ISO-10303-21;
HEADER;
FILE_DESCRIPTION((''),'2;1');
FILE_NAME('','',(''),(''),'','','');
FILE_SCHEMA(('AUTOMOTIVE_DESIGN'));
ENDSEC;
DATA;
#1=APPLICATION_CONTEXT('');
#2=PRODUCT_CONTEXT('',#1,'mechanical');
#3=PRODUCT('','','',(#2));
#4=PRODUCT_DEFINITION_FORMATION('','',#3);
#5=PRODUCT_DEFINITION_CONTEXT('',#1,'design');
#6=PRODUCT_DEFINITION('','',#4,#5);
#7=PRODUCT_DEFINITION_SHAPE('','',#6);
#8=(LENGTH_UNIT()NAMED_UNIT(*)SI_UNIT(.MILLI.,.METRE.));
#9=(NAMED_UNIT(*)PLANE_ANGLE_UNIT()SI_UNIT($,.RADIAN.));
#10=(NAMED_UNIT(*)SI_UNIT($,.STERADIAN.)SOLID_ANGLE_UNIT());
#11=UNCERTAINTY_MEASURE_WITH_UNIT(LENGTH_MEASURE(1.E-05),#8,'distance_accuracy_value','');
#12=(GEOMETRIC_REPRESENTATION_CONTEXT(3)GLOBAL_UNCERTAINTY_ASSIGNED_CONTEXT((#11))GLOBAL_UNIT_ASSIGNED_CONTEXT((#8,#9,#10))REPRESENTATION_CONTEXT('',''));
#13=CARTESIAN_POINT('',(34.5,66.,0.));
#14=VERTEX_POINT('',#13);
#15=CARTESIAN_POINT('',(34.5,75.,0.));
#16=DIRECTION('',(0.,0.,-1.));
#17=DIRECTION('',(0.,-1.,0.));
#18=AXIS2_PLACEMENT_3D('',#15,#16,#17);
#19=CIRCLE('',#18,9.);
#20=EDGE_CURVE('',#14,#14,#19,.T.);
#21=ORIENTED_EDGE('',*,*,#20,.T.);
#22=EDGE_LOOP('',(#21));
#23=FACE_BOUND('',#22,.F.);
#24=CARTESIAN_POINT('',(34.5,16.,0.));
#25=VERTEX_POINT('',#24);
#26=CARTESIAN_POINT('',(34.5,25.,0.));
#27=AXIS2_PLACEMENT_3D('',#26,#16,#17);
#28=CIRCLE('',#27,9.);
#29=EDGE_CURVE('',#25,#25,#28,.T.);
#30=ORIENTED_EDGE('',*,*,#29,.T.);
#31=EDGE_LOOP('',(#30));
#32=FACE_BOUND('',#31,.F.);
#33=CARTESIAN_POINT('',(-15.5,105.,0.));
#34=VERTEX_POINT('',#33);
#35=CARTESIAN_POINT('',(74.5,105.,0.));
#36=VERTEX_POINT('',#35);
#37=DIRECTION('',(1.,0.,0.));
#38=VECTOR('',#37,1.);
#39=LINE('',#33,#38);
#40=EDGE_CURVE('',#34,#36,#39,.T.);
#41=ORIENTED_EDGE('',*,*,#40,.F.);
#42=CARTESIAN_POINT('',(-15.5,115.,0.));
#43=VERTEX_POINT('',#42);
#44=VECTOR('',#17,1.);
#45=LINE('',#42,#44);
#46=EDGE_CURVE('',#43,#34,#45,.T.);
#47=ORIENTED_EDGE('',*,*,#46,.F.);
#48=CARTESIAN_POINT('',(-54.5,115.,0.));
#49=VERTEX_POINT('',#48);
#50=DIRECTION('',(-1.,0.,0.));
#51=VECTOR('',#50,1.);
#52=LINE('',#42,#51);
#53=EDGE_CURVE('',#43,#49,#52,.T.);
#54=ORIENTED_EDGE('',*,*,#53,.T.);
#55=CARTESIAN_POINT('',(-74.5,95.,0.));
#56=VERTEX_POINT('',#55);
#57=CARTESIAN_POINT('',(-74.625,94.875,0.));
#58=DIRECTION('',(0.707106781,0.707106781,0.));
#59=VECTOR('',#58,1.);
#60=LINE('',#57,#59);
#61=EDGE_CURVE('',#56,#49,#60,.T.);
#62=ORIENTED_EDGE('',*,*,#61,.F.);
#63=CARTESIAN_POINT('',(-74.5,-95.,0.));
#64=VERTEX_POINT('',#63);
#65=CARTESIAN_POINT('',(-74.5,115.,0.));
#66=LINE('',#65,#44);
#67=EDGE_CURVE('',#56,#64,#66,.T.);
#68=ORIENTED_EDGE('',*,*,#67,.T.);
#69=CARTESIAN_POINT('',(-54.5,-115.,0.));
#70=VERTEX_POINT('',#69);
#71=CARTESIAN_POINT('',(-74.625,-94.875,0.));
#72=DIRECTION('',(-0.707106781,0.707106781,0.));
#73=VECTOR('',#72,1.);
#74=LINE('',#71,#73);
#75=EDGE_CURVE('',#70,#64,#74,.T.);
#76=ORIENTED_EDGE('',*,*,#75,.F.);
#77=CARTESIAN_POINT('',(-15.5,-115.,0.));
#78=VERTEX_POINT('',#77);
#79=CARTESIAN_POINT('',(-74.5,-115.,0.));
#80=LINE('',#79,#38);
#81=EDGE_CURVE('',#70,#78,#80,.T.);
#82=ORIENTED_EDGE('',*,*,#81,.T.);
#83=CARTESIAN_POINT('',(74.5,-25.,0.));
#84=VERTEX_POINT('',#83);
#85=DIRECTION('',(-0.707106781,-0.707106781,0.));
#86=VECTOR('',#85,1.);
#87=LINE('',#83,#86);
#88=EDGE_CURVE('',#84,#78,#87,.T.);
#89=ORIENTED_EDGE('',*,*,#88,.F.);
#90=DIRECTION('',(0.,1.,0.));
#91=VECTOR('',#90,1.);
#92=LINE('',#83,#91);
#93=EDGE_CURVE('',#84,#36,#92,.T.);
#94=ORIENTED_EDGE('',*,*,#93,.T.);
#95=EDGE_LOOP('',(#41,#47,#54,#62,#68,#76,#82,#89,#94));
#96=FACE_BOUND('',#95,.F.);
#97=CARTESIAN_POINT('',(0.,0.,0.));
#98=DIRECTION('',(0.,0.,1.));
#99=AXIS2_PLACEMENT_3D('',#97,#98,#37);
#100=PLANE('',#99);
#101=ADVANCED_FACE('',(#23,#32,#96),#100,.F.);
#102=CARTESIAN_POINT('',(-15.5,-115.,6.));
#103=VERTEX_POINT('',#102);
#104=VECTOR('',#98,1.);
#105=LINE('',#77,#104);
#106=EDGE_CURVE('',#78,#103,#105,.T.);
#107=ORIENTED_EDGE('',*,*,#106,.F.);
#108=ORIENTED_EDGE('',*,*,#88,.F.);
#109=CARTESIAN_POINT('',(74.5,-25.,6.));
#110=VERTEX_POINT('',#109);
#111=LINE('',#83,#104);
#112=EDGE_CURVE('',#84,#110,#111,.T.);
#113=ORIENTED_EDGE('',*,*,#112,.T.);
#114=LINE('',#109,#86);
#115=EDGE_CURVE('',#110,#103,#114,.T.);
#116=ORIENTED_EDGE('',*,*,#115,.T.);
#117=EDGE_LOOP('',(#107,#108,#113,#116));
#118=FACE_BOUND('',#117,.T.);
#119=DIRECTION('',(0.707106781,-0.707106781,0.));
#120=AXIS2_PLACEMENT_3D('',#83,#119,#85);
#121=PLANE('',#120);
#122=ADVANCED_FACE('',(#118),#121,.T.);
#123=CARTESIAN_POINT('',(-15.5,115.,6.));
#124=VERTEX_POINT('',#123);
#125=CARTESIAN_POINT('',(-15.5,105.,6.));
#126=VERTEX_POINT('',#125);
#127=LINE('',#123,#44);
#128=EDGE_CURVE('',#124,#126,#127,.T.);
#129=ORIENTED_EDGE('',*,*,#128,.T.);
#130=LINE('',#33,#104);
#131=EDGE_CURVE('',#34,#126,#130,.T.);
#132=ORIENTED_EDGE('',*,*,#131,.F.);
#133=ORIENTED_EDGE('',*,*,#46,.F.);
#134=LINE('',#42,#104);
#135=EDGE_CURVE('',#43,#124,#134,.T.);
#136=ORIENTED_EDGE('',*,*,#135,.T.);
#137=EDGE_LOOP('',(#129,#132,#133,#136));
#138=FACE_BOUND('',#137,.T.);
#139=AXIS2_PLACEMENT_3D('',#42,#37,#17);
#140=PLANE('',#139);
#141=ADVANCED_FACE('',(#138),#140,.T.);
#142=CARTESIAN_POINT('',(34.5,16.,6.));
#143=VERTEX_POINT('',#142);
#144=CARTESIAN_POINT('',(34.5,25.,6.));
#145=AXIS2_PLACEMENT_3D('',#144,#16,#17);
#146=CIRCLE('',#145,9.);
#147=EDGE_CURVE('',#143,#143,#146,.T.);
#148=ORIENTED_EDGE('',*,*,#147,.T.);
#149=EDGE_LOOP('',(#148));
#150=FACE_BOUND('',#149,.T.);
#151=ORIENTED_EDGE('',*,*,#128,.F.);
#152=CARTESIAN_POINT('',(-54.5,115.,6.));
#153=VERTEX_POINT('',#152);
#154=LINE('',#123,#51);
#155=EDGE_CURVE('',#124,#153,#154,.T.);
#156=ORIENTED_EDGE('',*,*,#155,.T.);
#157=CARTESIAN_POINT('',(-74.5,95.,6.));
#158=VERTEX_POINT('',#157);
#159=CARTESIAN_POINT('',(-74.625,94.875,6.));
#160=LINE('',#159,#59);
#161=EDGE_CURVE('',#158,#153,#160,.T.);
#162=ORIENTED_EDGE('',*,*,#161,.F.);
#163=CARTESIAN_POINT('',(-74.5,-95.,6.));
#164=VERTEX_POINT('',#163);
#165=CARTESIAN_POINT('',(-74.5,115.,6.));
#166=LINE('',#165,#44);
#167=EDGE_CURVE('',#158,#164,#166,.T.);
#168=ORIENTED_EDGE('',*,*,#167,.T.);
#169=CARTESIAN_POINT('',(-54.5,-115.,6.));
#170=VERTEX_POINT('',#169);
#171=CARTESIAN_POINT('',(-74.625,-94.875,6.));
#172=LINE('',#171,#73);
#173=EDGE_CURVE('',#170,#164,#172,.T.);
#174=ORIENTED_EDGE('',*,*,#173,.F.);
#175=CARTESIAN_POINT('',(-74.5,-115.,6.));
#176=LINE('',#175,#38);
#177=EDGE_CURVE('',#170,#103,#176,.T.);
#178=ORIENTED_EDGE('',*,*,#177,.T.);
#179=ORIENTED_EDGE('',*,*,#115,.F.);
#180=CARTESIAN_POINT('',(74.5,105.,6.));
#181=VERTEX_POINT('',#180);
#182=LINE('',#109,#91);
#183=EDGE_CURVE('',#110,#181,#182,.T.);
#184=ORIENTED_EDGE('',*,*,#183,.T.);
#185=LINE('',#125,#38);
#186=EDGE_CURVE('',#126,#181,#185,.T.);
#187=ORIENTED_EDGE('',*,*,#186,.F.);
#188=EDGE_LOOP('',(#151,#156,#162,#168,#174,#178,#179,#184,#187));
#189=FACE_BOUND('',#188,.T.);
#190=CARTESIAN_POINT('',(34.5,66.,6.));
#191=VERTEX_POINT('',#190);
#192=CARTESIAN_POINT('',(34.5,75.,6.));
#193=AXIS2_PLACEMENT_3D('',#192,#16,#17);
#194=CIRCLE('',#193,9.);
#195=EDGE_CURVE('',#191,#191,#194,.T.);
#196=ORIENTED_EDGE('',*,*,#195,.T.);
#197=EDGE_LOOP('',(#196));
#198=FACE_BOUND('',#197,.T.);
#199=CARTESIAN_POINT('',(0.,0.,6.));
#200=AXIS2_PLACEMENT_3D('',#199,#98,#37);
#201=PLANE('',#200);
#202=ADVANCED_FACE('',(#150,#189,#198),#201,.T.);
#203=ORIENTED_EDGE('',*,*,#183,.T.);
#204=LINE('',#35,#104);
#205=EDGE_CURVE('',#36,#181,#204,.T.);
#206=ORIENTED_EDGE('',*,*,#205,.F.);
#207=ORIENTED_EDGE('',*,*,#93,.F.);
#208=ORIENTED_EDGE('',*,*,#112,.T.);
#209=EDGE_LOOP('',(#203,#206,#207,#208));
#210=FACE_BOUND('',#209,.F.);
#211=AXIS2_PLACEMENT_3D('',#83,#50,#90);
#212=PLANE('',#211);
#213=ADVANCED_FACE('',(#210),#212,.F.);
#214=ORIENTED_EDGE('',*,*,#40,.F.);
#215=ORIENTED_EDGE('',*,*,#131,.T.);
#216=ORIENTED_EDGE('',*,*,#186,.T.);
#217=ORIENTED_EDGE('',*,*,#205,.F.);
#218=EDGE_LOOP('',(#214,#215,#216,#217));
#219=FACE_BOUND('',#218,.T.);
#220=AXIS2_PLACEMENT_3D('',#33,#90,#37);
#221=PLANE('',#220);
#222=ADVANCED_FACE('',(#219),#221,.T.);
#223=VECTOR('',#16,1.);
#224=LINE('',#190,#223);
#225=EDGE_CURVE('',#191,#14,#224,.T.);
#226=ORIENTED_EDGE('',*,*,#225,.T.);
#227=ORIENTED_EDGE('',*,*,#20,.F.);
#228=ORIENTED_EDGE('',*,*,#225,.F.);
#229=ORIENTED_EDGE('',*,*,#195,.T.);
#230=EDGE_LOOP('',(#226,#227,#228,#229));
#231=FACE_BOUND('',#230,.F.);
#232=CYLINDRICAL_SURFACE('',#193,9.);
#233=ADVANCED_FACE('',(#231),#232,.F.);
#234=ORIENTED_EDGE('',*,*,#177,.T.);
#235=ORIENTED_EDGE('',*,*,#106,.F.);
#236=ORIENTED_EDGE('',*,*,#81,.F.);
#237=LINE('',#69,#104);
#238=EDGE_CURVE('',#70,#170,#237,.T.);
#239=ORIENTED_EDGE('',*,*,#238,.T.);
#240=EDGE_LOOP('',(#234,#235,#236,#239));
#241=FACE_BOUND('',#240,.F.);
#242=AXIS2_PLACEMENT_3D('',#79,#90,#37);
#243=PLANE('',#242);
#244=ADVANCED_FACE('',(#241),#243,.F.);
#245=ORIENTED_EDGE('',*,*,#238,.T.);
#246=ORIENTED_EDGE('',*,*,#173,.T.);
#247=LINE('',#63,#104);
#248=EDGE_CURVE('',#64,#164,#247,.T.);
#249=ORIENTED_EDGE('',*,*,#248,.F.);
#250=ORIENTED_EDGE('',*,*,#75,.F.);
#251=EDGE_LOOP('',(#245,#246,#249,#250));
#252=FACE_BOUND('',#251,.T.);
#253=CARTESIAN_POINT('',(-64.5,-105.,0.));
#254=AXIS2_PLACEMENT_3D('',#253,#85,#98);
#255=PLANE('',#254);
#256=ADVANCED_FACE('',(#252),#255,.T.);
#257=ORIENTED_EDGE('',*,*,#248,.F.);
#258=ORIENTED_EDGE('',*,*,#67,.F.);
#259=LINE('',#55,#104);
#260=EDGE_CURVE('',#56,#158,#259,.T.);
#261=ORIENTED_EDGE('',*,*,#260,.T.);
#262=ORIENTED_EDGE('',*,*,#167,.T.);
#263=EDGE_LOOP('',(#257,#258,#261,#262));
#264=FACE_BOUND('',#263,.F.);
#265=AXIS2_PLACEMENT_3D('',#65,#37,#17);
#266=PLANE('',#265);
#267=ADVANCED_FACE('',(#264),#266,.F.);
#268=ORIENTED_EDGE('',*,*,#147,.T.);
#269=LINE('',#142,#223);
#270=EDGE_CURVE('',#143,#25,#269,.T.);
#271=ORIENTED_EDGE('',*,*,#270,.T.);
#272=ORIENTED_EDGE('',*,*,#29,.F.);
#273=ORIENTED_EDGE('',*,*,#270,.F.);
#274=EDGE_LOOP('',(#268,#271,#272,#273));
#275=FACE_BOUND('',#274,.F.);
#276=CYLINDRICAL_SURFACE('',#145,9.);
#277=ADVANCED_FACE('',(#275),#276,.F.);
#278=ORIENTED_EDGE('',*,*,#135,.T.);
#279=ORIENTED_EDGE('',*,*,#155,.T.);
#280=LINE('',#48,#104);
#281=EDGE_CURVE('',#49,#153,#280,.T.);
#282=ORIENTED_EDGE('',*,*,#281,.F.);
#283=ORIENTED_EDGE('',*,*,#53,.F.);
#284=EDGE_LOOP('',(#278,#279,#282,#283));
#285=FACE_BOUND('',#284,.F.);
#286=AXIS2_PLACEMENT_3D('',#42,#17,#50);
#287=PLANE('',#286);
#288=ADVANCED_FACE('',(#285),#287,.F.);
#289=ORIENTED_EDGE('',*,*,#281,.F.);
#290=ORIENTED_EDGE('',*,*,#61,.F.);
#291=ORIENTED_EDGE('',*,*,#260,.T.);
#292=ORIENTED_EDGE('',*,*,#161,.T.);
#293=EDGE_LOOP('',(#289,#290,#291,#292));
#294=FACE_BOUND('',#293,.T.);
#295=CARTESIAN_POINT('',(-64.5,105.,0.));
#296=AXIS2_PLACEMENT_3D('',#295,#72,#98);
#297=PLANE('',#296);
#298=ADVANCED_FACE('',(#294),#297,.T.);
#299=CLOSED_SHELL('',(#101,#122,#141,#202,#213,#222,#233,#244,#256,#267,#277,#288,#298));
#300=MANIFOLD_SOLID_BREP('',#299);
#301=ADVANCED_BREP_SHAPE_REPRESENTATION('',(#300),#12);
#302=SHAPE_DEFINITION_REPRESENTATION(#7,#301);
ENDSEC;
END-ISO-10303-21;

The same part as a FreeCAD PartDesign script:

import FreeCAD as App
import Part
import Sketcher
from FreeCAD import Vector
Q = App.Units.Quantity


def edges_at(feature, points):
    """Names of the edges that pass closest to the given points."""
    edges = feature.Shape.Edges
    near = lambda p: min(range(len(edges)), key=lambda i: edges[i].distToShape(Part.Vertex(*p))[0])
    return sorted({f"Edge{near(p) + 1}" for p in points})

doc = App.newDocument("Part")
body = doc.addObject("PartDesign::Body", "Body")

sketch1 = body.newObject("Sketcher::SketchObject", "Sketch")
sketch1.AttachmentSupport = (doc.getObject("XY_Plane"), [""])
sketch1.MapMode = "FlatFace"
sketch1.addGeometry(Part.LineSegment(Vector(-16, 105, 0), Vector(-16, 115, 0)), False)
sketch1.addGeometry(Part.LineSegment(Vector(-16, 115, 0), Vector(-74, 115, 0)), False)
sketch1.addGeometry(Part.LineSegment(Vector(-74, 115, 0), Vector(-74, -115, 0)), False)
sketch1.addGeometry(Part.LineSegment(Vector(-74, -115, 0), Vector(-16, -115, 0)), False)
sketch1.addGeometry(Part.LineSegment(Vector(-16, -115, 0), Vector(74, -25, 0)), False)
sketch1.addGeometry(Part.LineSegment(Vector(74, -25, 0), Vector(74, 105, 0)), False)
sketch1.addGeometry(Part.LineSegment(Vector(74, 105, 0), Vector(-16, 105, 0)), False)
sketch1.addConstraint(Sketcher.Constraint("Coincident", 0, 2, 1, 1))
sketch1.addConstraint(Sketcher.Constraint("Coincident", 1, 2, 2, 1))
sketch1.addConstraint(Sketcher.Constraint("Coincident", 2, 2, 3, 1))
sketch1.addConstraint(Sketcher.Constraint("Coincident", 3, 2, 4, 1))
sketch1.addConstraint(Sketcher.Constraint("Coincident", 4, 2, 5, 1))
sketch1.addConstraint(Sketcher.Constraint("Coincident", 5, 2, 6, 1))
sketch1.addConstraint(Sketcher.Constraint("Coincident", 6, 2, 0, 1))
sketch1.addConstraint(Sketcher.Constraint("Vertical", 0))
sketch1.addConstraint(Sketcher.Constraint("Horizontal", 1))
sketch1.addConstraint(Sketcher.Constraint("Vertical", 2))
sketch1.addConstraint(Sketcher.Constraint("Horizontal", 3))
sketch1.addConstraint(Sketcher.Constraint("Vertical", 5))
sketch1.addConstraint(Sketcher.Constraint("Horizontal", 6))
sketch1.addConstraint(Sketcher.Constraint("Symmetric", 0, 2, 3, 2, -1))
sketch1.addConstraint(Sketcher.Constraint("DistanceX", 1, 2, 1, 1, Q("59 mm")))
sketch1.addConstraint(Sketcher.Constraint("DistanceY", 2, 2, 2, 1, Q("230 mm")))
sketch1.addConstraint(Sketcher.Constraint("DistanceX", 6, 2, 6, 1, Q("90 mm")))
sketch1.addConstraint(Sketcher.Constraint("DistanceY", 0, 1, 0, 2, Q("10 mm")))
sketch1.addConstraint(Sketcher.Constraint("DistanceY", 5, 1, 5, 2, Q("130 mm")))
sketch1.addConstraint(Sketcher.Constraint("DistanceX", 0, 2, -1, 1, Q("15.5 mm")))
pad1 = body.newObject("PartDesign::Pad", "Pad")
pad1.Profile = sketch1
pad1.Length = 6
doc.recompute()

chamfer = body.newObject("PartDesign::Chamfer", "Chamfer")
chamfer.Base = (pad1, edges_at(pad1, [(-74.5, -115, 3), (-74.5, 115, 3)]))
chamfer.Size = 20

sketch2 = body.newObject("Sketcher::SketchObject", "Sketch001")
sketch2.AttachmentSupport = (doc.getObject("XY_Plane"), [""])
sketch2.MapMode = "FlatFace"
sketch2.AttachmentOffset = App.Placement(Vector(0, 0, 6), App.Rotation())
sketch2.addGeometry(Part.Circle(Vector(34, 75, 0), Vector(0, 0, 1), 9), False)
sketch2.addGeometry(Part.Circle(Vector(34, 25, 0), Vector(0, 0, 1), 9), False)
sketch2.addConstraint(Sketcher.Constraint("Equal", 0, 1))
sketch2.addConstraint(Sketcher.Constraint("Vertical", 0, 3, 1, 3))
sketch2.addConstraint(Sketcher.Constraint("Diameter", 0, Q("18 mm")))
sketch2.addConstraint(Sketcher.Constraint("DistanceY", -1, 1, 0, 3, Q("75 mm")))
sketch2.addConstraint(Sketcher.Constraint("DistanceY", -1, 1, 1, 3, Q("25 mm")))
sketch2.addConstraint(Sketcher.Constraint("DistanceX", -1, 1, 0, 3, Q("34.5 mm")))
doc.recompute()
hole = body.newObject("PartDesign::Hole", "Hole")
hole.Profile = sketch2
hole.ThreadType = "None"
hole.Diameter = 18
hole.DepthType = "ThroughAll"

doc.recompute()
